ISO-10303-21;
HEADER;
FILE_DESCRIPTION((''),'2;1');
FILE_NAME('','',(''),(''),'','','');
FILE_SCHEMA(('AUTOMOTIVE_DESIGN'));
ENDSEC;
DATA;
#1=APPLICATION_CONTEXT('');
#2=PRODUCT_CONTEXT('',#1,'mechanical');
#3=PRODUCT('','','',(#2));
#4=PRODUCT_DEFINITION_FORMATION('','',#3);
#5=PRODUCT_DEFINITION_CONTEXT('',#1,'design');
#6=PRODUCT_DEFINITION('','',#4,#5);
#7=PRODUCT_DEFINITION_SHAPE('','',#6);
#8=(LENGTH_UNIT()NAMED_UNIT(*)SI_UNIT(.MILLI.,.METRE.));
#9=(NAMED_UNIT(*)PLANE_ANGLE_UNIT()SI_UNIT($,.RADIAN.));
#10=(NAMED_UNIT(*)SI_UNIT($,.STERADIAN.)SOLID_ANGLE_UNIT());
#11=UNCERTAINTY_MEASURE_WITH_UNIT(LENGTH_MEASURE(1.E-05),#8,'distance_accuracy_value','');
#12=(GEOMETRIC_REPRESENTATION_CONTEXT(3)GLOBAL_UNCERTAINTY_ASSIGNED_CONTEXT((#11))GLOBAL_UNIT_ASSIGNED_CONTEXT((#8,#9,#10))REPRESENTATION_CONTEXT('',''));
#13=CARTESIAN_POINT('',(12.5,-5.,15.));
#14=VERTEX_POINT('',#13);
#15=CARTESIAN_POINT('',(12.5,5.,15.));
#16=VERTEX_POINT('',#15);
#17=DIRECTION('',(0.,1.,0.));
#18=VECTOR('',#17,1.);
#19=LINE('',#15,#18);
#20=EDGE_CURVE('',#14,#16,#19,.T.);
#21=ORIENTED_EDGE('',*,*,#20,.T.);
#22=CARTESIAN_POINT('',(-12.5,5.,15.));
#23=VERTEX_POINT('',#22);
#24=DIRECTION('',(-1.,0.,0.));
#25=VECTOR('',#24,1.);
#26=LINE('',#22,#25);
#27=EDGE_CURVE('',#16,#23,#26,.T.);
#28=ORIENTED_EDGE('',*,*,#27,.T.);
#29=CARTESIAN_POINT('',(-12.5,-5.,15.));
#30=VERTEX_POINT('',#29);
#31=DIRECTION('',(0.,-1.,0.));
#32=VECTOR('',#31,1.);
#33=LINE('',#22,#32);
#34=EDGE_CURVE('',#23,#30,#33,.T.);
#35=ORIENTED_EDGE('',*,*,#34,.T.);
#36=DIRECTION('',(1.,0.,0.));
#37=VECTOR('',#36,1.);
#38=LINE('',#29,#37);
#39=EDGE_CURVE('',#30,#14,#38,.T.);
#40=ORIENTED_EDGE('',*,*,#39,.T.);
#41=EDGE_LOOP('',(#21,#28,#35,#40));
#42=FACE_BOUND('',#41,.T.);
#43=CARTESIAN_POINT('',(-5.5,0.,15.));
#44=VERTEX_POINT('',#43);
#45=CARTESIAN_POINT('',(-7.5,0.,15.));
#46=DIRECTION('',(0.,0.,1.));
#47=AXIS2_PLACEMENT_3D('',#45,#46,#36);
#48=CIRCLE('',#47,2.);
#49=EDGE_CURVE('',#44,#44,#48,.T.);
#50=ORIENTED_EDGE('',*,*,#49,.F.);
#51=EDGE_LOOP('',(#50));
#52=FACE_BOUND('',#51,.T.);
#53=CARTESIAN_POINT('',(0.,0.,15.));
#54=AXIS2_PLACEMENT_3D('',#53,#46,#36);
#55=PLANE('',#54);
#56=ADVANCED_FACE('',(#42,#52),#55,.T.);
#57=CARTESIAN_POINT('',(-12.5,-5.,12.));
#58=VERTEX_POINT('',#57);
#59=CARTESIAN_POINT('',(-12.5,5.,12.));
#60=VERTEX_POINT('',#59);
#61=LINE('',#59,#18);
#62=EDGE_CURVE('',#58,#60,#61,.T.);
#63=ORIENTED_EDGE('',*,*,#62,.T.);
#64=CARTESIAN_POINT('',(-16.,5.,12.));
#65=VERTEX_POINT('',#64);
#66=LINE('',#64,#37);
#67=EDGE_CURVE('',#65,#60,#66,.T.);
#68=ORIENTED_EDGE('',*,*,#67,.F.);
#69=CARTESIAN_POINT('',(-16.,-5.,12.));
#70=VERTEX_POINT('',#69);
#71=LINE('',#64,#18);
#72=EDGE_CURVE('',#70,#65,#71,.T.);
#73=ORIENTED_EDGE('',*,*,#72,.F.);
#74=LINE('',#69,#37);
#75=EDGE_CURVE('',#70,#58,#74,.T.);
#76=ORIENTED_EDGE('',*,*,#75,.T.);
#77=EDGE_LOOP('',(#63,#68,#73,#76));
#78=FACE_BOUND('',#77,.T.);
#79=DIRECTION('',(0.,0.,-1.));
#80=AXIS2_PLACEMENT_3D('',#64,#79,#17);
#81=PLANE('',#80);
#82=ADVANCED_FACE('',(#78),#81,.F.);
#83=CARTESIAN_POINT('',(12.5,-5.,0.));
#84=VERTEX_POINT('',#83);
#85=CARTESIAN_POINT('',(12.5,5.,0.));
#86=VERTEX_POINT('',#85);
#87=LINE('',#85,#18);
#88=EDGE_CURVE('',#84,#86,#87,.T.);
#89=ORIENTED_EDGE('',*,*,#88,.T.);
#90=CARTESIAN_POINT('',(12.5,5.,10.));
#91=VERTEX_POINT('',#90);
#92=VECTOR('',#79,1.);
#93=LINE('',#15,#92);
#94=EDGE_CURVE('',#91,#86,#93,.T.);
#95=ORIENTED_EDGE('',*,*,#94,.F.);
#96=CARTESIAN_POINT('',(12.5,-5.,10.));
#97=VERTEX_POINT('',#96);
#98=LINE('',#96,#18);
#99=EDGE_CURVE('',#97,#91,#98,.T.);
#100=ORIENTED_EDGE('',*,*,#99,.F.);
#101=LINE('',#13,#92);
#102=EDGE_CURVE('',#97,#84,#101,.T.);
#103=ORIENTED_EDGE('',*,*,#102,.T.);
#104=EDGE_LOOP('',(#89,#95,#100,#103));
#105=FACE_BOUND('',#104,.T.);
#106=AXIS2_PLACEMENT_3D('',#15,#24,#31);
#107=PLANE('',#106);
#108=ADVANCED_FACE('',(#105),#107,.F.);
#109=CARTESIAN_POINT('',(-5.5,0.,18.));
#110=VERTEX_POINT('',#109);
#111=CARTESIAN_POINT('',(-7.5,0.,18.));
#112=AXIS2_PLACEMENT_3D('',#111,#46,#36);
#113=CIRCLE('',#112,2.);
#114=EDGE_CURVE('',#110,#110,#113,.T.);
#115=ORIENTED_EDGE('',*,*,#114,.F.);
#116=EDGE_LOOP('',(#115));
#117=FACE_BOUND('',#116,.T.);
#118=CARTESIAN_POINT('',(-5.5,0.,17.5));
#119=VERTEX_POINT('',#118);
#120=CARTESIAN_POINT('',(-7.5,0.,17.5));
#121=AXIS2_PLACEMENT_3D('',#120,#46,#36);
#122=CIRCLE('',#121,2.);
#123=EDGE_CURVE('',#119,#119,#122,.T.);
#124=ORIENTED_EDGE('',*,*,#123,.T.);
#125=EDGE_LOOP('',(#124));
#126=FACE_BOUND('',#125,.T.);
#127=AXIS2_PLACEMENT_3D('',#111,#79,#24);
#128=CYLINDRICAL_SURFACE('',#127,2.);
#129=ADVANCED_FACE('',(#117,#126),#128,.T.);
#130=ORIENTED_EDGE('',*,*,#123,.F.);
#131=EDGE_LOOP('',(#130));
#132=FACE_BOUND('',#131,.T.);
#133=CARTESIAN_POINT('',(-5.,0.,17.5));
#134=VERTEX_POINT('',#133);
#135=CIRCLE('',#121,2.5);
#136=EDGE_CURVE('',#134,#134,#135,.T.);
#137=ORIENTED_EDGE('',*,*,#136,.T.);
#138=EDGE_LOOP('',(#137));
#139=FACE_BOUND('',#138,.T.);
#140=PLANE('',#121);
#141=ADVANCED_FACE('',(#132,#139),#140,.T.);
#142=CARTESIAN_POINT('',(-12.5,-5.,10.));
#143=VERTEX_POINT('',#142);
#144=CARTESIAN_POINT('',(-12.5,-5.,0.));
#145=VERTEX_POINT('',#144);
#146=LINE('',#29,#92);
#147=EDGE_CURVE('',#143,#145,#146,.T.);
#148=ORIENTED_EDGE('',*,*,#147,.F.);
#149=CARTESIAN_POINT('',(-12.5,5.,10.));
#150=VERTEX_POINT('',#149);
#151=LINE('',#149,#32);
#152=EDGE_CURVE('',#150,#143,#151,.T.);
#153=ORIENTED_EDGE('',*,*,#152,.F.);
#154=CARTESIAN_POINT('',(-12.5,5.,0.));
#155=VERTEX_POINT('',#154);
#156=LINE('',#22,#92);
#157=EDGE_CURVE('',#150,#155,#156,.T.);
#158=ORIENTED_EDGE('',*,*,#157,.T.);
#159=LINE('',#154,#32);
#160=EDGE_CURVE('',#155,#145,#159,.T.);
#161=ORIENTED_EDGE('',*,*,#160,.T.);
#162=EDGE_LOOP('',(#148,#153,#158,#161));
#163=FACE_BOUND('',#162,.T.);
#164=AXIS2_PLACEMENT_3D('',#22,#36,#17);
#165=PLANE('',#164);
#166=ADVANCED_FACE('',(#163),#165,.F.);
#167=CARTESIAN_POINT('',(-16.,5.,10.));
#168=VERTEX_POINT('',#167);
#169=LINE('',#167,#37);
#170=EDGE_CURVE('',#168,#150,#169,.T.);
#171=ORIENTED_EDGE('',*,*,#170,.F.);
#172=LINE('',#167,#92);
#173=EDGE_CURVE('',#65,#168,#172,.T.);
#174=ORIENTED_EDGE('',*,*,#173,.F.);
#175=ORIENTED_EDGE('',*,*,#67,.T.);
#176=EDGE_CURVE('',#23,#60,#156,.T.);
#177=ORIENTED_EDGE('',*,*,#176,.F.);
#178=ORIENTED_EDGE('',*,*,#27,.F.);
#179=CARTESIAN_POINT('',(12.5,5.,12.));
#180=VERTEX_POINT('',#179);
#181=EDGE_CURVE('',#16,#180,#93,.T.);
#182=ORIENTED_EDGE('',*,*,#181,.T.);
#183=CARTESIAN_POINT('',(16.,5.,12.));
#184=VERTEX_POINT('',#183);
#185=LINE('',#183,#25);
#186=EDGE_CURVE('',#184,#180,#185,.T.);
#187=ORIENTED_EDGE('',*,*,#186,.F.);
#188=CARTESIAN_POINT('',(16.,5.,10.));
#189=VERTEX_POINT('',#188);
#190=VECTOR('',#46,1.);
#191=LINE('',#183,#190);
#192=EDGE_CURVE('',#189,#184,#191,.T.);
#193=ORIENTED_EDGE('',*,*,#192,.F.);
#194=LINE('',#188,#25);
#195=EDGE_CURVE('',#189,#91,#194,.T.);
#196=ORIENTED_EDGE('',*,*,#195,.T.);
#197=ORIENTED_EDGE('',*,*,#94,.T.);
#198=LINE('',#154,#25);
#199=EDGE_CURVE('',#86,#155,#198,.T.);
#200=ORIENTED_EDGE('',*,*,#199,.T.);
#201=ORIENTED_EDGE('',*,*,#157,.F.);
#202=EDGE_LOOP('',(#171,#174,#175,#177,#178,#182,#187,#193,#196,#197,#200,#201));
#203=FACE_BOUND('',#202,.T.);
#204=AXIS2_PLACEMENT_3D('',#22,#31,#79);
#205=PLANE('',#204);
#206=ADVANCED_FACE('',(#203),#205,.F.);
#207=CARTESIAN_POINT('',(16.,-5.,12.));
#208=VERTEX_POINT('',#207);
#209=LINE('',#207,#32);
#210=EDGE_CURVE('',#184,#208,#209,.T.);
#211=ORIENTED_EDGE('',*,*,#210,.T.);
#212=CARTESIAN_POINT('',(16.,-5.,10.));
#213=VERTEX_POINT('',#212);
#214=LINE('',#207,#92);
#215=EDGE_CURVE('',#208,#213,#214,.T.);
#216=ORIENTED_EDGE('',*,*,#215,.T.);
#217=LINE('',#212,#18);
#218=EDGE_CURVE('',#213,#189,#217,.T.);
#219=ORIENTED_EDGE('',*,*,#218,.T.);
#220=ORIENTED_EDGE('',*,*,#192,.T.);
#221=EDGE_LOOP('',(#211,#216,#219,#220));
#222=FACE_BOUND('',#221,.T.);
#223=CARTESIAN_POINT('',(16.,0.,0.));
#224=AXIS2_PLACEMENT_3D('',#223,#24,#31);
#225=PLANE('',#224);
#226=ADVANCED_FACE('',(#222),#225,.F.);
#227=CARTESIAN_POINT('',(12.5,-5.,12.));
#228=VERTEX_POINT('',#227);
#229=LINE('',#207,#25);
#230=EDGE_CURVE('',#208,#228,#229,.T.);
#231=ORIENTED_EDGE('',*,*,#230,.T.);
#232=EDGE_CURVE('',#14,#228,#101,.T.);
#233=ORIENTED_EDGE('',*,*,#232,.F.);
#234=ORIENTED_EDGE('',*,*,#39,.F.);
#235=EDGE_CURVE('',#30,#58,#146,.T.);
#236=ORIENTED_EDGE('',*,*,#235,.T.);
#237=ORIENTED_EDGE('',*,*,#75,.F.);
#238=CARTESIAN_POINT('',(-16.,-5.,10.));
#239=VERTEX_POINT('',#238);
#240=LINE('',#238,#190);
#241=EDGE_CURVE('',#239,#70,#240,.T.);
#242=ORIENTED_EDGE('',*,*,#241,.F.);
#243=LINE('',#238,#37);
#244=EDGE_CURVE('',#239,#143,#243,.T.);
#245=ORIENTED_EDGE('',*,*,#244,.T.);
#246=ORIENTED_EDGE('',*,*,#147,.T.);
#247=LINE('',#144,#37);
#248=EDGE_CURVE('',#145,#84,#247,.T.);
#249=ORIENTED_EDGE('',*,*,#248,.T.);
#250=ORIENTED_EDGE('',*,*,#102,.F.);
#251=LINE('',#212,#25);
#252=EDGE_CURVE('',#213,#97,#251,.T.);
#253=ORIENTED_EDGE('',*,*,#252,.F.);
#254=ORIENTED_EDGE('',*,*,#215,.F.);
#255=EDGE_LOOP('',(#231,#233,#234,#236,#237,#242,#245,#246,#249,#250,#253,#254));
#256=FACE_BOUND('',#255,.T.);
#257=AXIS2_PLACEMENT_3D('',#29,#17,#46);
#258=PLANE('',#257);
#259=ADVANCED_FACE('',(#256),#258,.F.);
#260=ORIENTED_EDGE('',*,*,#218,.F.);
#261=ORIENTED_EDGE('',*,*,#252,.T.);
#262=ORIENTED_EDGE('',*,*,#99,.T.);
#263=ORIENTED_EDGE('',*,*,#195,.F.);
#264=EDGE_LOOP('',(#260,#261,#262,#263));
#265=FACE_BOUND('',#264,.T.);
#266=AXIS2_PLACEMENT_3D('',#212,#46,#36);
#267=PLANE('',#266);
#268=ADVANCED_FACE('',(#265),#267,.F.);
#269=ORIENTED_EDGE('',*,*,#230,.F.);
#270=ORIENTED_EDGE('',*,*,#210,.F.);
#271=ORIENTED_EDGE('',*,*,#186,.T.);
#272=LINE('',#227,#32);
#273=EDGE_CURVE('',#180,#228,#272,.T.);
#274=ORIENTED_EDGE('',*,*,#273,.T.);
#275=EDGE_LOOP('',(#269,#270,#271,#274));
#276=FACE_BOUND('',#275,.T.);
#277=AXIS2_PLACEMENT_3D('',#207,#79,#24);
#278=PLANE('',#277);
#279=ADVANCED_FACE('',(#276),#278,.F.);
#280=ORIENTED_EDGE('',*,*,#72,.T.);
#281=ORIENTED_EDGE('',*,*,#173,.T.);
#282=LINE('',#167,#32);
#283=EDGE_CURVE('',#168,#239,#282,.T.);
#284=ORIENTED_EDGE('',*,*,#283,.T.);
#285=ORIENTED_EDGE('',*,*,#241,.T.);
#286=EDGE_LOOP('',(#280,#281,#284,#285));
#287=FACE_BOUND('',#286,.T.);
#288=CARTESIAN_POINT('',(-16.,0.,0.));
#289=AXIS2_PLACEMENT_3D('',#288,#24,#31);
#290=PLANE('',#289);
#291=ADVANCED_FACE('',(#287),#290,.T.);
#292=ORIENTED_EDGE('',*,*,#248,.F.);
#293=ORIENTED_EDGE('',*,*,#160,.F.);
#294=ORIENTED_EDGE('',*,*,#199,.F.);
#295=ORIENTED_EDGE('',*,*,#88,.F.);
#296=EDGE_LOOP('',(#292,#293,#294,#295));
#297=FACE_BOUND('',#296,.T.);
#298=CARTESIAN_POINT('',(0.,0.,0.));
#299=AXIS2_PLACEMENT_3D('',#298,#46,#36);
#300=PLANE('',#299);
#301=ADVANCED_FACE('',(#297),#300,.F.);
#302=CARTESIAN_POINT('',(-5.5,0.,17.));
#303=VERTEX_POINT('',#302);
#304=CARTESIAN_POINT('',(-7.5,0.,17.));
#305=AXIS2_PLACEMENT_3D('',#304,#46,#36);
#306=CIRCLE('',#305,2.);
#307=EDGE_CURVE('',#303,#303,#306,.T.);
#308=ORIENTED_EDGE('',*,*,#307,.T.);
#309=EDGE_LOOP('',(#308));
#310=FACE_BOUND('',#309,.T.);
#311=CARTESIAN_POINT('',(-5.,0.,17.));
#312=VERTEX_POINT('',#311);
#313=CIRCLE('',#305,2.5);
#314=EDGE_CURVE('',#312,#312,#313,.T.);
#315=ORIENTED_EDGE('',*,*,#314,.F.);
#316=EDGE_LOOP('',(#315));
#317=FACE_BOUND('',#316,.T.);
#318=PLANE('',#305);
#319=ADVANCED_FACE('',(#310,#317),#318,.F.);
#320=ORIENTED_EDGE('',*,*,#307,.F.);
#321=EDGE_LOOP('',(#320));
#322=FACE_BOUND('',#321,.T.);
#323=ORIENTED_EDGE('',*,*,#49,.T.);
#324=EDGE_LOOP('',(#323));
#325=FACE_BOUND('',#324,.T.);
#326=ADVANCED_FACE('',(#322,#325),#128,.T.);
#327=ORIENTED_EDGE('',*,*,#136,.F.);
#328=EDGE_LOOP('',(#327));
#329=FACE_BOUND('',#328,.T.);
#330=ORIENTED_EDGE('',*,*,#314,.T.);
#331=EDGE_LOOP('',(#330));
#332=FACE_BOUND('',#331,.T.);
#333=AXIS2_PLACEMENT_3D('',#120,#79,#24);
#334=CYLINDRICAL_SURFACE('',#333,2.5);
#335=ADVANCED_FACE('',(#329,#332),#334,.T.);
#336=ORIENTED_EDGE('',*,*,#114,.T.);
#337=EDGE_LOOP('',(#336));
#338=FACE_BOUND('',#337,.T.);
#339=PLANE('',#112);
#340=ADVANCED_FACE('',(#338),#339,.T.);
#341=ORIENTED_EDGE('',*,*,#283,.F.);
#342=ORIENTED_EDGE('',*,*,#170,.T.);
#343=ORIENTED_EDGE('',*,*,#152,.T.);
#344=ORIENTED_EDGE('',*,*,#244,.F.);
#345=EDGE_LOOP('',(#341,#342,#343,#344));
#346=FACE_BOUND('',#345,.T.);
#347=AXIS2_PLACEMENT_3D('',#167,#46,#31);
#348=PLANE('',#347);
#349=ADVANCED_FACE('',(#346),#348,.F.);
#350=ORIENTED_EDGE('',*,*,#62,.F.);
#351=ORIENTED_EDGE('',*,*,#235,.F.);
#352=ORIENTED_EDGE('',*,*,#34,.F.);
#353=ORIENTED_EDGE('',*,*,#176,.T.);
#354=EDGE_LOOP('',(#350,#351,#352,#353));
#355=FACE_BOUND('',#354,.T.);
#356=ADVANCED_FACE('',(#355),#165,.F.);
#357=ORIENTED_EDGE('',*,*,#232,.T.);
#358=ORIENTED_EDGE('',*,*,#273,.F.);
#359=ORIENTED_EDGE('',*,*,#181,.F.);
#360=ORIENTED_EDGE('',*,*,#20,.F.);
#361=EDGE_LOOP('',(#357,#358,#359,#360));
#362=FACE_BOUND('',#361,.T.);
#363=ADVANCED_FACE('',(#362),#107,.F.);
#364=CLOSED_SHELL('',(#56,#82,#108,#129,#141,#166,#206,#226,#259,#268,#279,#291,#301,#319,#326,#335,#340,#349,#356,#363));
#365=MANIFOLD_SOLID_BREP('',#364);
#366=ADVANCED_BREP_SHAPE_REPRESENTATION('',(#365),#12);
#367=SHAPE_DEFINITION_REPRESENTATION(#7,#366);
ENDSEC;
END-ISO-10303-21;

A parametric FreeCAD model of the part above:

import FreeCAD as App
import Part
import Sketcher
Q = App.Units.Quantity

doc = App.newDocument("Part")
body = doc.addObject("PartDesign::Body", "Body")

sketch1 = body.newObject("Sketcher::SketchObject", "Sketch")
sketch1.AttachmentSupport = (doc.getObject("XY_Plane"), [""])
sketch1.MapMode = "FlatFace"
sketch1.addGeometry([
    Part.LineSegment(App.Vector(-12, 5, 0), App.Vector(-12, -5, 0)),
    Part.LineSegment(App.Vector(-12, -5, 0), App.Vector(12, -5, 0)),
    Part.LineSegment(App.Vector(12, -5, 0), App.Vector(12, 5, 0)),
    Part.LineSegment(App.Vector(12, 5, 0), App.Vector(-12, 5, 0)),
], False)
sketch1.addConstraint([
    Sketcher.Constraint("Coincident", 0, 2, 1, 1),
    Sketcher.Constraint("Coincident", 1, 2, 2, 1),
    Sketcher.Constraint("Coincident", 2, 2, 3, 1),
    Sketcher.Constraint("Coincident", 3, 2, 0, 1),
    Sketcher.Constraint("Vertical", 0),
    Sketcher.Constraint("Horizontal", 1),
    Sketcher.Constraint("Vertical", 2),
    Sketcher.Constraint("Horizontal", 3),
    Sketcher.Constraint("Symmetric", 0, 2, 2, 2, -1, 1),
    Sketcher.Constraint("DistanceX", 1, 1, 1, 2, Q("25 mm")),
    Sketcher.Constraint("DistanceY", 0, 2, 0, 1, Q("10 mm")),
])
pad1 = body.newObject("PartDesign::Pad", "Pad")
pad1.Profile = sketch1
pad1.Length = 15

sketch2 = body.newObject("Sketcher::SketchObject", "Sketch001")
sketch2.AttachmentSupport = (doc.getObject("XY_Plane"), [""])
sketch2.MapMode = "FlatFace"
sketch2.AttachmentOffset = App.Placement(App.Vector(0, 0, 15), App.Rotation())
sketch2.addGeometry(Part.Circle(App.Vector(-7.5, 0, 0), App.Vector(0, 0, 1), 2), False)
sketch2.addConstraint([
    Sketcher.Constraint("PointOnObject", 0, 3, -1),
    Sketcher.Constraint("Diameter", 0, Q("4 mm")),
    Sketcher.Constraint("DistanceX", 0, 3, -1, 1, Q("7.5 mm")),
])
pad2 = body.newObject("PartDesign::Pad", "Pad001")
pad2.Profile = sketch2
pad2.Length = 3

sketch3 = body.newObject("Sketcher::SketchObject", "Sketch002")
sketch3.AttachmentSupport = (doc.getObject("YZ_Plane"), [""])
sketch3.MapMode = "FlatFace"
sketch3.AttachmentOffset = App.Placement(App.Vector(0, 0, 12.5), App.Rotation())
sketch3.addGeometry([
    Part.LineSegment(App.Vector(5, 12, 0), App.Vector(-5, 12, 0)),
    Part.LineSegment(App.Vector(-5, 12, 0), App.Vector(-5, 10, 0)),
    Part.LineSegment(App.Vector(-5, 10, 0), App.Vector(5, 10, 0)),
    Part.LineSegment(App.Vector(5, 10, 0), App.Vector(5, 12, 0)),
], False)
sketch3.addConstraint([
    Sketcher.Constraint("Coincident", 0, 2, 1, 1),
    Sketcher.Constraint("Coincident", 1, 2, 2, 1),
    Sketcher.Constraint("Coincident", 2, 2, 3, 1),
    Sketcher.Constraint("Coincident", 3, 2, 0, 1),
    Sketcher.Constraint("Horizontal", 0),
    Sketcher.Constraint("Vertical", 1),
    Sketcher.Constraint("Horizontal", 2),
    Sketcher.Constraint("Vertical", 3),
    Sketcher.Constraint("DistanceX", 0, 2, 0, 1, Q("10 mm")),
    Sketcher.Constraint("DistanceY", 1, 2, 1, 1, Q("2 mm")),
    Sketcher.Constraint("DistanceX", 0, 2, -1, 1, Q("5 mm")),
    Sketcher.Constraint("DistanceY", -1, 1, 0, 2, Q("12 mm")),
])
pad3 = body.newObject("PartDesign::Pad", "Pad002")
pad3.Profile = sketch3
pad3.Length = 3.5

sketch4 = body.newObject("Sketcher::SketchObject", "Sketch003")
sketch4.AttachmentSupport = (doc.getObject("YZ_Plane"), [""])
sketch4.MapMode = "FlatFace"
sketch4.AttachmentOffset = App.Placement(App.Vector(0, 0, -12.5), App.Rotation())
sketch4.addGeometry([
    Part.LineSegment(App.Vector(5, 10, 0), App.Vector(-5, 10, 0)),
    Part.LineSegment(App.Vector(-5, 10, 0), App.Vector(-5, 12, 0)),
    Part.LineSegment(App.Vector(-5, 12, 0), App.Vector(5, 12, 0)),
    Part.LineSegment(App.Vector(5, 12, 0), App.Vector(5, 10, 0)),
], False)
sketch4.addConstraint([
    Sketcher.Constraint("Coincident", 0, 2, 1, 1),
    Sketcher.Constraint("Coincident", 1, 2, 2, 1),
    Sketcher.Constraint("Coincident", 2, 2, 3, 1),
    Sketcher.Constraint("Coincident", 3, 2, 0, 1),
    Sketcher.Constraint("Horizontal", 0),
    Sketcher.Constraint("Vertical", 1),
    Sketcher.Constraint("Horizontal", 2),
    Sketcher.Constraint("Vertical", 3),
    Sketcher.Constraint("DistanceX", 0, 2, 0, 1, Q("10 mm")),
    Sketcher.Constraint("DistanceY", 1, 1, 1, 2, Q("2 mm")),
    Sketcher.Constraint("DistanceX", 0, 2, -1, 1, Q("5 mm")),
    Sketcher.Constraint("DistanceY", -1, 1, 0, 2, Q("10 mm")),
])
pad4 = body.newObject("PartDesign::Pad", "Pad003")
pad4.Profile = sketch4
pad4.Length = 3.5
pad4.Reversed = True

sketch5 = body.newObject("Sketcher::SketchObject", "Sketch004")
sketch5.AttachmentSupport = (doc.getObject("XY_Plane"), [""])
sketch5.MapMode = "FlatFace"
sketch5.AttachmentOffset = App.Placement(App.Vector(0, 0, 17), App.Rotation())
sketch5.addGeometry(Part.Circle(App.Vector(-7.5, 0, 0), App.Vector(0, 0, 1), 2.5), False)
sketch5.addConstraint([
    Sketcher.Constraint("PointOnObject", 0, 3, -1),
    Sketcher.Constraint("Diameter", 0, Q("5 mm")),
    Sketcher.Constraint("DistanceX", 0, 3, -1, 1, Q("7.5 mm")),
])
pad5 = body.newObject("PartDesign::Pad", "Pad004")
pad5.Profile = sketch5
pad5.Length = 0.5

doc.recompute()
